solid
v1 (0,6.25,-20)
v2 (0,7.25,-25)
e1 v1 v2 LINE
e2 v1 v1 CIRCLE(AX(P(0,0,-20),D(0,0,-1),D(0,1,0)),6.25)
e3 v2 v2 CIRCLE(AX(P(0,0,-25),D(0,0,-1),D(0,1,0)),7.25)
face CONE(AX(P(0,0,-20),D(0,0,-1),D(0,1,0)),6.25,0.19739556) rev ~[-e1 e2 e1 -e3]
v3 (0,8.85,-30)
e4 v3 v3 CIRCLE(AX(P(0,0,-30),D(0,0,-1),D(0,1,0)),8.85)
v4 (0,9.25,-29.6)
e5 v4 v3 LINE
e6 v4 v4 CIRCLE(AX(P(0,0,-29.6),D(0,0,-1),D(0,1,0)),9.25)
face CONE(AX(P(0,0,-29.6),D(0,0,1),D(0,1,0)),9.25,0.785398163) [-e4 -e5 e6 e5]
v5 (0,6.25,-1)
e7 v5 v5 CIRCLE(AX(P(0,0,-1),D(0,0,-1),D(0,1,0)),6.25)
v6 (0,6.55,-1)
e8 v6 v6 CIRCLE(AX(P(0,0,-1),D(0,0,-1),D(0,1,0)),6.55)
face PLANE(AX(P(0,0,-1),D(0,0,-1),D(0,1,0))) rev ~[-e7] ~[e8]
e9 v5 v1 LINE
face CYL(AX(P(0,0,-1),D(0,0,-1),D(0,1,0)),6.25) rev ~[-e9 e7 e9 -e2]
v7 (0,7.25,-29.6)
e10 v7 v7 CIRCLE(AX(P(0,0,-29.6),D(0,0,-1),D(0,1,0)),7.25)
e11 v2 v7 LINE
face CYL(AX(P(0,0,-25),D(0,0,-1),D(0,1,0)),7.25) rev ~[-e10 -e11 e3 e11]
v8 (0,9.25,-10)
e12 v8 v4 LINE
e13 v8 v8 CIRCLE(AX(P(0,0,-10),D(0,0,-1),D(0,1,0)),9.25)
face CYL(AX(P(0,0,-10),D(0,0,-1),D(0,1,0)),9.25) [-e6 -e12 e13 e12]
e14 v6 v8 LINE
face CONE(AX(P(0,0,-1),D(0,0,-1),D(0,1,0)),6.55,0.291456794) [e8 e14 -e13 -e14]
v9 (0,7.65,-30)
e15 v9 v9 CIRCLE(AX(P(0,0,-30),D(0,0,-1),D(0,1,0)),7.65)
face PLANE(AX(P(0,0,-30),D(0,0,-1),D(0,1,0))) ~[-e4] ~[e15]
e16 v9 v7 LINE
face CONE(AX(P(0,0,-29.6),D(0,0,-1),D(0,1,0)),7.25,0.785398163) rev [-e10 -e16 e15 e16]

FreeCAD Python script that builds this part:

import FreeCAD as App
import Part
import Sketcher
from FreeCAD import Vector


def edges_at(feature, points):
    """Names of the edges that pass closest to the given points."""
    edges = feature.Shape.Edges
    near = lambda p: min(range(len(edges)), key=lambda i: edges[i].distToShape(Part.Vertex(*p))[0])
    return sorted({f"Edge{near(p) + 1}" for p in points})


def add_polygon(sketch, points):
    """Adds a closed chain of lines whose ends are joined by coincident constraints."""
    first, n = sketch.GeometryCount, len(points)
    for a, b in zip(points, points[1:] + points[:1]):
        sketch.addGeometry(Part.LineSegment(App.Vector(*a, 0), App.Vector(*b, 0)), False)
    for i in range(n):
        sketch.addConstraint(Sketcher.Constraint("Coincident", first + i, 2, first + (i + 1) % n, 1))

doc = App.newDocument("Part")
body = doc.addObject("PartDesign::Body", "Body")

# Sketch on YZ plane
sketch1 = doc.addObject("Sketcher::SketchObject", "Sketch")
body.addObject(sketch1)
sketch1.AttachmentSupport = (doc.YZ_Plane, [""])
sketch1.MapMode = "FlatFace"
add_polygon(sketch1, [(9.25, -10), (6.55, -1), (6.25, -1), (6.25, -20), (7.25, -25), (7.25, -30), (9.25, -30)])  # lines 0-6
sketch1.addConstraint([
    Sketcher.Constraint("Horizontal", 1),
    Sketcher.Constraint("Vertical", 2),
    Sketcher.Constraint("Vertical", 4),
    Sketcher.Constraint("Horizontal", 5),
    Sketcher.Constraint("Vertical", 6),
    Sketcher.Constraint("DistanceX", 5, 1, 5, 2, 2.0),
    Sketcher.Constraint("DistanceY", 4, 2, 4, 1, 5.0),
    Sketcher.Constraint("DistanceY", 0, 2, -1, 1, 1.0),
    Sketcher.Constraint("DistanceY", 4, 2, -1, 1, 30.0),
    Sketcher.Constraint("DistanceY", 6, 2, -1, 1, 10.0),
    Sketcher.Constraint("DistanceX", 2, 2, 3, 2, 1.0),
    Sketcher.Constraint("DistanceY", 3, 2, 2, 2, 5.0),
    Sketcher.Constraint("DistanceX", 1, 2, 1, 1, 0.3),
    Sketcher.Constraint("DistanceX", -1, 1, 0, 2, 6.55),
])
revolution = doc.addObject("PartDesign::Revolution", "Revolution")
body.addObject(revolution)
revolution.Profile = sketch1
revolution.ReferenceAxis = (sketch1, ["V_Axis"])
revolution.Angle = 360
doc.recompute()

chamfer = doc.addObject("PartDesign::Chamfer", "Chamfer")
body.addObject(chamfer)
chamfer.Base = (revolution, edges_at(revolution, [(0, -7.25, -30), (0, -9.25, -30)]))
chamfer.Size = 0.4

doc.recompute()
